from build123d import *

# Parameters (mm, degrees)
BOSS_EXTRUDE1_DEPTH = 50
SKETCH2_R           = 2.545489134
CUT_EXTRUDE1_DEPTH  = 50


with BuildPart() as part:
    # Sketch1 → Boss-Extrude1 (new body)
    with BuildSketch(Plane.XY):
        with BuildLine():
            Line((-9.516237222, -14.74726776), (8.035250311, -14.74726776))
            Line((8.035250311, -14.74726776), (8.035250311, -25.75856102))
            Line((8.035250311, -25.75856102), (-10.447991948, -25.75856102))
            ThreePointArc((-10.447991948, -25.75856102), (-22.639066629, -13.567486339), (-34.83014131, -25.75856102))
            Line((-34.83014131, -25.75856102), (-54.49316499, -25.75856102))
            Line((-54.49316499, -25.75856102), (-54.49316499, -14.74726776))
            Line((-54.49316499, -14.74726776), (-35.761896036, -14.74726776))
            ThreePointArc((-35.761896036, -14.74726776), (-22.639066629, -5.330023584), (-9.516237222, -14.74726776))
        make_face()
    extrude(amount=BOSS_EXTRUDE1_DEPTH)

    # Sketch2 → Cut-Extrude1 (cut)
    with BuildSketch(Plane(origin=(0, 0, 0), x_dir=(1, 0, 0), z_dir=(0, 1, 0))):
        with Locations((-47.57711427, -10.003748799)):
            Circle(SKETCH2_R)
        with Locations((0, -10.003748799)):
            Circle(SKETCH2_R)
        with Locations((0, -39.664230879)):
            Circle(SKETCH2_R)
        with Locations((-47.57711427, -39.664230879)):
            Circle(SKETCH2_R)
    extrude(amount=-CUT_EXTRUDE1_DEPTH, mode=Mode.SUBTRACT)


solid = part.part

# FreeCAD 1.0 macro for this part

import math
import FreeCAD as App
import Part
import Sketcher

V = App.Vector
Q = App.Units.Quantity

doc = App.newDocument("Part")
body = doc.addObject("PartDesign::Body", "Body")

sketch1 = body.newObject("Sketcher::SketchObject", "Sketch")
sketch1.AttachmentSupport = (doc.getObject("XY_Plane"), [""])
sketch1.MapMode = "FlatFace"
sketch1.addGeometry(Part.LineSegment(V(8, -15, 0), V(-10, -15, 0)), False)
sketch1.addGeometry(Part.ArcOfCircle(Part.Circle(V(-23, -19, 0), V(0, 0, 1), 14), math.radians(19), math.radians(161)), False)
sketch1.addGeometry(Part.LineSegment(V(-36, -15, 0), V(-54, -15, 0)), False)
sketch1.addGeometry(Part.LineSegment(V(-54, -15, 0), V(-54, -26, 0)), False)
sketch1.addGeometry(Part.LineSegment(V(-54, -26, 0), V(-35, -26, 0)), False)
sketch1.addGeometry(Part.ArcOfCircle(Part.Circle(V(-23, -26, 0), V(0, 0, 1), 12), math.radians(0), math.radians(180)), False)
sketch1.addGeometry(Part.LineSegment(V(-10, -26, 0), V(8, -26, 0)), False)
sketch1.addGeometry(Part.LineSegment(V(8, -26, 0), V(8, -15, 0)), False)
sketch1.addConstraint(Sketcher.Constraint("Coincident", 0, 2, 1, 1))
sketch1.addConstraint(Sketcher.Constraint("Coincident", 1, 2, 2, 1))
sketch1.addConstraint(Sketcher.Constraint("Coincident", 2, 2, 3, 1))
sketch1.addConstraint(Sketcher.Constraint("Coincident", 3, 2, 4, 1))
sketch1.addConstraint(Sketcher.Constraint("Coincident", 4, 2, 5, 2))
sketch1.addConstraint(Sketcher.Constraint("Coincident", 5, 1, 6, 1))
sketch1.addConstraint(Sketcher.Constraint("Coincident", 6, 2, 7, 1))
sketch1.addConstraint(Sketcher.Constraint("Coincident", 7, 2, 0, 1))
sketch1.addConstraint(Sketcher.Constraint("Horizontal", 0))
sketch1.addConstraint(Sketcher.Constraint("Horizontal", 2))
sketch1.addConstraint(Sketcher.Constraint("Vertical", 3))
sketch1.addConstraint(Sketcher.Constraint("Horizontal", 4))
sketch1.addConstraint(Sketcher.Constraint("Horizontal", 6))
sketch1.addConstraint(Sketcher.Constraint("Vertical", 7))
sketch1.addConstraint(Sketcher.Constraint("Horizontal", 0, 2, 1, 2))
sketch1.addConstraint(Sketcher.Constraint("Horizontal", 5, 3, 3, 2))
sketch1.addConstraint(Sketcher.Constraint("Horizontal", 4, 2, 5, 1))
sketch1.addConstraint(Sketcher.Constraint("Vertical", 1, 3, 5, 3))
sketch1.addConstraint(Sketcher.Constraint("Radius", 1, Q("13.851884 mm")))
sketch1.addConstraint(Sketcher.Constraint("Radius", 5, Q("12.191075 mm")))
sketch1.addConstraint(Sketcher.Constraint("DistanceX", 2, 2, 2, 1, Q("18.731269 mm")))
sketch1.addConstraint(Sketcher.Constraint("DistanceX", 2, 2, 1, 3, Q("31.854098 mm")))
sketch1.addConstraint(Sketcher.Constraint("DistanceX", 0, 2, 0, 1, Q("17.551488 mm")))
sketch1.addConstraint(Sketcher.Constraint("DistanceY", 3, 2, 3, 1, Q("11.011293 mm")))
sketch1.addConstraint(Sketcher.Constraint("DistanceY", 5, 3, -1, 1, Q("25.758561 mm")))
sketch1.addConstraint(Sketcher.Constraint("DistanceX", 4, 2, -1, 1, Q("34.830141 mm")))
pad1 = body.newObject("PartDesign::Pad", "Pad")
pad1.Profile = sketch1
pad1.Length = 50

sketch2 = body.newObject("Sketcher::SketchObject", "Sketch001")
sketch2.AttachmentSupport = (doc.getObject("XZ_Plane"), [""])
sketch2.MapMode = "FlatFace"
sketch2.addGeometry(Part.Circle(V(-47.6, 10, 0), V(0, 0, 1), 2.5), False)
sketch2.addGeometry(Part.Circle(V(0, 10, 0), V(0, 0, 1), 2.5), False)
sketch2.addGeometry(Part.Circle(V(0, 39.7, 0), V(0, 0, 1), 2.5), False)
sketch2.addGeometry(Part.Circle(V(-47.6, 39.7, 0), V(0, 0, 1), 2.5), False)
sketch2.addConstraint(Sketcher.Constraint("Equal", 0, 1))
sketch2.addConstraint(Sketcher.Constraint("Equal", 1, 2))
sketch2.addConstraint(Sketcher.Constraint("Equal", 2, 3))
sketch2.addConstraint(Sketcher.Constraint("PointOnObject", 1, 3, -2))
sketch2.addConstraint(Sketcher.Constraint("PointOnObject", 2, 3, -2))
sketch2.addConstraint(Sketcher.Constraint("Horizontal", 0, 3, 1, 3))
sketch2.addConstraint(Sketcher.Constraint("Horizontal", 2, 3, 3, 3))
sketch2.addConstraint(Sketcher.Constraint("Vertical", 0, 3, 3, 3))
sketch2.addConstraint(Sketcher.Constraint("Diameter", 0, Q("5.090978 mm")))
sketch2.addConstraint(Sketcher.Constraint("DistanceY", -1, 1, 0, 3, Q("10.003749 mm")))
sketch2.addConstraint(Sketcher.Constraint("DistanceY", -1, 1, 2, 3, Q("39.664231 mm")))
sketch2.addConstraint(Sketcher.Constraint("DistanceX", 0, 3, -1, 1, Q("47.577114 mm")))
pocket1 = body.newObject("PartDesign::Pocket", "Pocket")
pocket1.Profile = sketch2
pocket1.Length = 50
pocket1.Reversed = True

doc.recompute()
